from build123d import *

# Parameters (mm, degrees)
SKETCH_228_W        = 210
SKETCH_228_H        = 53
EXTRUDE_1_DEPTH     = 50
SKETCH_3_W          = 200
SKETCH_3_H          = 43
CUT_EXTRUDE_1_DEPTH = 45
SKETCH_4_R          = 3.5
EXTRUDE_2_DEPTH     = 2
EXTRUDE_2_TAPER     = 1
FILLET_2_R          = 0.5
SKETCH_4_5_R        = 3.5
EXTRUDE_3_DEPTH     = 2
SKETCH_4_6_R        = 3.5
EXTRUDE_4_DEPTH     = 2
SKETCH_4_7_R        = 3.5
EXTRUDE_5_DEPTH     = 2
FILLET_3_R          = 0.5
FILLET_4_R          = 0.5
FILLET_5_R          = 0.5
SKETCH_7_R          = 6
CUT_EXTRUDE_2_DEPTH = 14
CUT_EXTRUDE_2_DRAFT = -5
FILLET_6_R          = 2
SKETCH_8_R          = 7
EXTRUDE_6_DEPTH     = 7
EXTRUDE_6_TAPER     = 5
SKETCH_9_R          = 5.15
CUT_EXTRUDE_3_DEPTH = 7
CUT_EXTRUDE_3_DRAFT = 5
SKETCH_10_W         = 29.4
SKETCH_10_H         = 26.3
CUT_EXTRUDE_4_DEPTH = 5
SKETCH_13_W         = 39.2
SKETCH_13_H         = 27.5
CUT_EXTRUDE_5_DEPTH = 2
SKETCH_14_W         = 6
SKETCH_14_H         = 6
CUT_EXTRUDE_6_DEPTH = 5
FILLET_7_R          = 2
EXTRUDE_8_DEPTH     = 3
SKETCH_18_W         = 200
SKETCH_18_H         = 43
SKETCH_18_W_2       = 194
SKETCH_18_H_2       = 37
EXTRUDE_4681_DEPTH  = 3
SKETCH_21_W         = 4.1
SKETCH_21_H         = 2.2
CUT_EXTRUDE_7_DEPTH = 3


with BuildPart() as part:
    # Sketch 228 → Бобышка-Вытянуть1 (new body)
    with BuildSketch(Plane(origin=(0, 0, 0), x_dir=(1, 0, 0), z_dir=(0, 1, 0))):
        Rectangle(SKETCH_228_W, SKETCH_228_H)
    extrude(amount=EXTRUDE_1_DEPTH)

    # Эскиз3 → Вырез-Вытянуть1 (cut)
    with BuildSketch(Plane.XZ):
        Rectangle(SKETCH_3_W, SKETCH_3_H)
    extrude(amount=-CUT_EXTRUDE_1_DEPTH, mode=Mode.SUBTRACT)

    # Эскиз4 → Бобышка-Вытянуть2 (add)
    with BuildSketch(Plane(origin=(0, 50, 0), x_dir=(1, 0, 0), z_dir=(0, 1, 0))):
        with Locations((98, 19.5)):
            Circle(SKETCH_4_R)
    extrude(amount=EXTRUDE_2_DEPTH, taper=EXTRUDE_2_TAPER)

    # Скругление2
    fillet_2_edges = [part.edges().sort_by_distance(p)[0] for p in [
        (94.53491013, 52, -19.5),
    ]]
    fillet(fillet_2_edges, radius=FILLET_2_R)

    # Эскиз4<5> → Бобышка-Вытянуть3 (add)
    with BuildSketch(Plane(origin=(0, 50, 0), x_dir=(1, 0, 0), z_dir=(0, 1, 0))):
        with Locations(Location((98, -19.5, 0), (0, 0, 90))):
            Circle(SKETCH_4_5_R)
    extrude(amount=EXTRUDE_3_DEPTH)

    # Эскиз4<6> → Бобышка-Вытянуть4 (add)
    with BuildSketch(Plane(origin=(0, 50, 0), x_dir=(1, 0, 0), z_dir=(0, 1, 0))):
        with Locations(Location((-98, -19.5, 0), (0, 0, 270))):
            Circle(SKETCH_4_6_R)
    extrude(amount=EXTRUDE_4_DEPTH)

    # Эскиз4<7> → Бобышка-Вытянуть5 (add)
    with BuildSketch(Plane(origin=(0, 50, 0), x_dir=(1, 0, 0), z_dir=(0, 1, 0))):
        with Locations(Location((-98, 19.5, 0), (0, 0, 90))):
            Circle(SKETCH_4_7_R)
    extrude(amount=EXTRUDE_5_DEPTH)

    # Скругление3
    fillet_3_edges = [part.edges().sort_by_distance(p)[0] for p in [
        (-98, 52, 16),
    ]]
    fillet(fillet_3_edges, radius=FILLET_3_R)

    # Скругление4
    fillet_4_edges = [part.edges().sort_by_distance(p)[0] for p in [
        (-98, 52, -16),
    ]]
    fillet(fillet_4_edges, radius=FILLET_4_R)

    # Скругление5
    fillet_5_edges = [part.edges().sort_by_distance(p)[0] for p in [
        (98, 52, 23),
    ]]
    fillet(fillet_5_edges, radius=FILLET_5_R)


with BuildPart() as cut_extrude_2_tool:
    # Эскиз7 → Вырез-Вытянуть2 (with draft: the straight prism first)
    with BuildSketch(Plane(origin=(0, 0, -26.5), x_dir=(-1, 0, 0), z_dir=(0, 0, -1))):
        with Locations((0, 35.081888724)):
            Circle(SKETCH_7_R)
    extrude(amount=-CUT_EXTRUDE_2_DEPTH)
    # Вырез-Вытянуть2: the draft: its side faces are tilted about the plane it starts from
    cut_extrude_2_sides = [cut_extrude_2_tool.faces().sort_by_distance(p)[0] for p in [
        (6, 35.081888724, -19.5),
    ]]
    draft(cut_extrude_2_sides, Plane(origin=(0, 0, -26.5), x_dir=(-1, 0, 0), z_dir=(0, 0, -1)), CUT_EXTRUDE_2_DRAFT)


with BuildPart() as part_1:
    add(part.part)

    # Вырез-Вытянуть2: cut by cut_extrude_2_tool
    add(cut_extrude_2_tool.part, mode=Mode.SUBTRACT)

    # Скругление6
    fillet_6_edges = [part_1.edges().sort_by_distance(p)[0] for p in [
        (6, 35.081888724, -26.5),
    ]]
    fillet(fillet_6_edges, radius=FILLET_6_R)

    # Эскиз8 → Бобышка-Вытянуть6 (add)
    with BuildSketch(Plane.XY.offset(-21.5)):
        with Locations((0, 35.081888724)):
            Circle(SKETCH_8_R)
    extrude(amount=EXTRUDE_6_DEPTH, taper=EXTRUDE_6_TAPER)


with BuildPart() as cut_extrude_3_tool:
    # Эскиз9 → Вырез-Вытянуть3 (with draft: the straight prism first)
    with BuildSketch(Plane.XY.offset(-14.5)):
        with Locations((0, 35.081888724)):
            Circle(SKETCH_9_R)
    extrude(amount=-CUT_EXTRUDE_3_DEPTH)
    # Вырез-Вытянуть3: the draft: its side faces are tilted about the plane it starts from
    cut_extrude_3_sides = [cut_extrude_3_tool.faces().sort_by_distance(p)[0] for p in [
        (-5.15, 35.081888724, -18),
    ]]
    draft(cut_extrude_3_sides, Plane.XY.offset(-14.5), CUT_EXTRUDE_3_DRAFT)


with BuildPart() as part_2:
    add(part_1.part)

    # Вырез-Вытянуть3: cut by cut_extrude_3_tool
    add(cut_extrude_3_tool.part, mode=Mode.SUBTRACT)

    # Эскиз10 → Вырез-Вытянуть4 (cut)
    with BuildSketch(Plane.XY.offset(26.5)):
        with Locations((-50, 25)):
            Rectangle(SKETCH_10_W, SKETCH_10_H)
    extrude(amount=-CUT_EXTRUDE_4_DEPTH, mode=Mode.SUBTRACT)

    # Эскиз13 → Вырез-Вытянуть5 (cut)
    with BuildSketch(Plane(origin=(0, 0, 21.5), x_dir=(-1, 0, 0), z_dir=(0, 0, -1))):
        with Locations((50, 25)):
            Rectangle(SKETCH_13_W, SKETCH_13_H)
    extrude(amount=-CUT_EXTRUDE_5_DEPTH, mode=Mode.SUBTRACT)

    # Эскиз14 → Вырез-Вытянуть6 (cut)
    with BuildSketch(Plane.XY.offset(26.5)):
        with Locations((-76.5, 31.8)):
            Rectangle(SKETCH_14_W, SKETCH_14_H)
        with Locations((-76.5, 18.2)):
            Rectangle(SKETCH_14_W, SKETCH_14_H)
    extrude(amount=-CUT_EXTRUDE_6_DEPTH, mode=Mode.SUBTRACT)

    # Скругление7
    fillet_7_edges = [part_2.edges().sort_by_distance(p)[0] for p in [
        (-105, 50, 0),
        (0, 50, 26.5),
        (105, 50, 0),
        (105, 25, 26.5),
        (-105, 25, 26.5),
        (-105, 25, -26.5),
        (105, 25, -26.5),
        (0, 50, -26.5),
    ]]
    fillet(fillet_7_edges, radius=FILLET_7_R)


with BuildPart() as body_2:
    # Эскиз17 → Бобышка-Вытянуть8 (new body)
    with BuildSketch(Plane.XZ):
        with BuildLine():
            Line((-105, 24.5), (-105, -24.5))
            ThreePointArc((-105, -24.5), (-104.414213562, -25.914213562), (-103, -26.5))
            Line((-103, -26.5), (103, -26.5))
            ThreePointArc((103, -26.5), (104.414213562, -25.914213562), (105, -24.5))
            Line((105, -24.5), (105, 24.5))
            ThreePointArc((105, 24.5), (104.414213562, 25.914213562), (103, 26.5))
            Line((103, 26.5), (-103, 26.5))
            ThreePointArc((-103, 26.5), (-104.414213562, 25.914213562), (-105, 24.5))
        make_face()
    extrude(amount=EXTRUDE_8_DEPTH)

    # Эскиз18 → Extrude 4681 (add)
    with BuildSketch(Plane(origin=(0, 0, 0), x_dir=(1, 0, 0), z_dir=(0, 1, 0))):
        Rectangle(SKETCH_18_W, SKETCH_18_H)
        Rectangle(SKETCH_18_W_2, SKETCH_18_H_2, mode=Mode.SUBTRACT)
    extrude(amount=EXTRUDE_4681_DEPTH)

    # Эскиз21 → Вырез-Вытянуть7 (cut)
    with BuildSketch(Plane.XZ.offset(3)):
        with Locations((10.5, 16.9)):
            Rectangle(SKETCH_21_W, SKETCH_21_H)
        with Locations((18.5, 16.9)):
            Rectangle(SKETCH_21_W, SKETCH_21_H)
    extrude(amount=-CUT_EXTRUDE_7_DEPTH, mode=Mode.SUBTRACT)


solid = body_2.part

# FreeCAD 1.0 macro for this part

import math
import FreeCAD as App
import Part
import Sketcher

V = App.Vector
Q = App.Units.Quantity


def edges_at(feature, points):
    """Names of the edges that pass closest to the given points."""
    edges = feature.Shape.Edges
    near = lambda p: min(range(len(edges)), key=lambda i: edges[i].distToShape(Part.Vertex(*p))[0])
    return sorted({f"Edge{near(p) + 1}" for p in points})


def faces_at(feature, points):
    """Names of the faces that lie closest to the given points."""
    faces = feature.Shape.Faces
    near = lambda p: min(range(len(faces)), key=lambda i: faces[i].distToShape(Part.Vertex(*p))[0])
    return sorted({f"Face{near(p) + 1}" for p in points})

doc = App.newDocument("Part")
body = doc.addObject("PartDesign::Body", "Body")

# Sketch on XZ plane
sketch1 = body.newObject("Sketcher::SketchObject", "Sketch")
sketch1.AttachmentSupport = (doc.getObject("XZ_Plane"), [""])
sketch1.MapMode = "FlatFace"
sketch1.addGeometry([
    Part.LineSegment(V(-105, -26, 0), V(-105, 26, 0)),
    Part.LineSegment(V(-105, 26, 0), V(105, 26, 0)),
    Part.LineSegment(V(105, 26, 0), V(105, -26, 0)),
    Part.LineSegment(V(105, -26, 0), V(-105, -26, 0)),
], False)
sketch1.addConstraint([
    Sketcher.Constraint("Coincident", 0, 2, 1, 1),
    Sketcher.Constraint("Coincident", 1, 2, 2, 1),
    Sketcher.Constraint("Coincident", 2, 2, 3, 1),
    Sketcher.Constraint("Coincident", 3, 2, 0, 1),
    Sketcher.Constraint("Vertical", 0),
    Sketcher.Constraint("Horizontal", 1),
    Sketcher.Constraint("Vertical", 2),
    Sketcher.Constraint("Horizontal", 3),
    Sketcher.Constraint("Symmetric", 0, 2, 2, 2, -1, 1),
    Sketcher.Constraint("DistanceX", 1, 1, 1, 2, Q("210 mm")),
    Sketcher.Constraint("DistanceY", 0, 1, 0, 2, Q("53 mm")),
])
pad1 = body.newObject("PartDesign::Pad", "Pad")
pad1.Profile = sketch1
pad1.Length = 50
pad1.Reversed = True

# Sketch on XZ plane
sketch2 = body.newObject("Sketcher::SketchObject", "Sketch001")
sketch2.AttachmentSupport = (doc.getObject("XZ_Plane"), [""])
sketch2.MapMode = "FlatFace"
sketch2.addGeometry([
    Part.LineSegment(V(-100, 22, 0), V(-100, -22, 0)),
    Part.LineSegment(V(-100, -22, 0), V(100, -22, 0)),
    Part.LineSegment(V(100, -22, 0), V(100, 22, 0)),
    Part.LineSegment(V(100, 22, 0), V(-100, 22, 0)),
], False)
sketch2.addConstraint([
    Sketcher.Constraint("Coincident", 0, 2, 1, 1),
    Sketcher.Constraint("Coincident", 1, 2, 2, 1),
    Sketcher.Constraint("Coincident", 2, 2, 3, 1),
    Sketcher.Constraint("Coincident", 3, 2, 0, 1),
    Sketcher.Constraint("Vertical", 0),
    Sketcher.Constraint("Horizontal", 1),
    Sketcher.Constraint("Vertical", 2),
    Sketcher.Constraint("Horizontal", 3),
    Sketcher.Constraint("Symmetric", 0, 2, 2, 2, -1, 1),
    Sketcher.Constraint("DistanceX", 1, 1, 1, 2, Q("200 mm")),
    Sketcher.Constraint("DistanceY", 0, 2, 0, 1, Q("43 mm")),
])
pocket1 = body.newObject("PartDesign::Pocket", "Pocket")
pocket1.Profile = sketch2
pocket1.Length = 45

# Sketch on XZ plane
sketch3 = body.newObject("Sketcher::SketchObject", "Sketch002")
sketch3.AttachmentSupport = (doc.getObject("XZ_Plane"), [""])
sketch3.MapMode = "FlatFace"
sketch3.AttachmentOffset = App.Placement(V(0, 0, -50), App.Rotation())
sketch3.addGeometry(Part.Circle(V(98, -19.5, 0), V(0, 0, 1), 3.5), False)
sketch3.addConstraint([
    Sketcher.Constraint("Diameter", 0, Q("7 mm")),
    Sketcher.Constraint("DistanceX", -1, 1, 0, 3, Q("98 mm")),
    Sketcher.Constraint("DistanceY", 0, 3, -1, 1, Q("19.5 mm")),
])
pad2 = body.newObject("PartDesign::Pad", "Pad001")
pad2.Profile = sketch3
pad2.Length = 2
pad2.Reversed = True
pad2.TaperAngle = -1
doc.recompute()

fillet = body.newObject("PartDesign::Fillet", "Fillet")
fillet.Base = (pad2, edges_at(pad2, [(94.535, 52, -19.5)]))
fillet.Radius = 0.5

# Sketch on XZ plane
sketch4 = body.newObject("Sketcher::SketchObject", "Sketch003")
sketch4.AttachmentSupport = (doc.getObject("XZ_Plane"), [""])
sketch4.MapMode = "FlatFace"
sketch4.AttachmentOffset = App.Placement(V(0, 0, -50), App.Rotation())
sketch4.addGeometry(Part.Circle(V(98, 19.5, 0), V(0, 0, 1), 3.5), False)
sketch4.addConstraint([
    Sketcher.Constraint("Diameter", 0, Q("7 mm")),
    Sketcher.Constraint("DistanceX", -1, 1, 0, 3, Q("98 mm")),
    Sketcher.Constraint("DistanceY", -1, 1, 0, 3, Q("19.5 mm")),
])
pad3 = body.newObject("PartDesign::Pad", "Pad002")
pad3.Profile = sketch4
pad3.Length = 2
pad3.Reversed = True

# Sketch on XZ plane
sketch5 = body.newObject("Sketcher::SketchObject", "Sketch004")
sketch5.AttachmentSupport = (doc.getObject("XZ_Plane"), [""])
sketch5.MapMode = "FlatFace"
sketch5.AttachmentOffset = App.Placement(V(0, 0, -50), App.Rotation())
sketch5.addGeometry(Part.Circle(V(-98, 19.5, 0), V(0, 0, 1), 3.5), False)
sketch5.addConstraint([
    Sketcher.Constraint("Diameter", 0, Q("7 mm")),
    Sketcher.Constraint("DistanceX", 0, 3, -1, 1, Q("98 mm")),
    Sketcher.Constraint("DistanceY", -1, 1, 0, 3, Q("19.5 mm")),
])
pad4 = body.newObject("PartDesign::Pad", "Pad003")
pad4.Profile = sketch5
pad4.Length = 2
pad4.Reversed = True

# Sketch on XZ plane
sketch6 = body.newObject("Sketcher::SketchObject", "Sketch005")
sketch6.AttachmentSupport = (doc.getObject("XZ_Plane"), [""])
sketch6.MapMode = "FlatFace"
sketch6.AttachmentOffset = App.Placement(V(0, 0, -50), App.Rotation())
sketch6.addGeometry(Part.Circle(V(-98, -19.5, 0), V(0, 0, 1), 3.5), False)
sketch6.addConstraint([
    Sketcher.Constraint("Diameter", 0, Q("7 mm")),
    Sketcher.Constraint("DistanceX", 0, 3, -1, 1, Q("98 mm")),
    Sketcher.Constraint("DistanceY", 0, 3, -1, 1, Q("19.5 mm")),
])
pad5 = body.newObject("PartDesign::Pad", "Pad004")
pad5.Profile = sketch6
pad5.Length = 2
pad5.Reversed = True
doc.recompute()

fillet2 = body.newObject("PartDesign::Fillet", "Fillet001")
fillet2.Base = (pad5, edges_at(pad5, [(-98, 52, 16)]))
fillet2.Radius = 0.5
doc.recompute()

fillet3 = body.newObject("PartDesign::Fillet", "Fillet002")
fillet3.Base = (fillet2, edges_at(fillet2, [(-98, 52, -16)]))
fillet3.Radius = 0.5
doc.recompute()

fillet4 = body.newObject("PartDesign::Fillet", "Fillet003")
fillet4.Base = (fillet3, edges_at(fillet3, [(98, 52, 23)]))
fillet4.Radius = 0.5
body2 = doc.addObject("PartDesign::Body", "Body001")

# Sketch on XY plane
sketch7 = body2.newObject("Sketcher::SketchObject", "Sketch006")
sketch7.AttachmentSupport = (doc.getObject("XY_Plane001"), [""])
sketch7.MapMode = "FlatFace"
sketch7.AttachmentOffset = App.Placement(V(0, 0, -26.5), App.Rotation())
sketch7.addGeometry(Part.Circle(V(0, 35, 0), V(0, 0, 1), 6), False)
sketch7.addConstraint([
    Sketcher.Constraint("PointOnObject", 0, 3, -2),
    Sketcher.Constraint("Diameter", 0, Q("12 mm")),
    Sketcher.Constraint("DistanceY", -1, 1, 0, 3, Q("35.081889 mm")),
])
pad6 = body2.newObject("PartDesign::Pad", "Pad005")
pad6.Profile = sketch7
pad6.Length = 14
doc.recompute()

datumplane = body2.newObject("PartDesign::Plane", "DatumPlane")
datumplane.AttachmentSupport = (doc.getObject("XY_Plane001"), [""])
datumplane.MapMode = "FlatFace"
datumplane.AttachmentOffset = App.Placement(V(0, 0, -26.5), App.Rotation())
draft = body2.newObject("PartDesign::Draft", "Draft")
draft.Base = (pad6, faces_at(pad6, [(6, 35.082, -19.5)]))
draft.NeutralPlane = (datumplane, [""])
draft.Angle = 5
draft.Reversed = False
doc.recompute()

boolean = body.newObject("PartDesign::Boolean", "Boolean")
boolean.Type = "Cut"
boolean.addObjects([body2])
doc.recompute()

fillet5 = body.newObject("PartDesign::Fillet", "Fillet004")
fillet5.Base = (boolean, edges_at(boolean, [(6, 35.082, -26.5)]))
fillet5.Radius = 2

# Sketch on XY plane
sketch8 = body.newObject("Sketcher::SketchObject", "Sketch007")
sketch8.AttachmentSupport = (doc.getObject("XY_Plane"), [""])
sketch8.MapMode = "FlatFace"
sketch8.AttachmentOffset = App.Placement(V(0, 0, -21.5), App.Rotation())
sketch8.addGeometry(Part.Circle(V(0, 35, 0), V(0, 0, 1), 7), False)
sketch8.addConstraint([
    Sketcher.Constraint("PointOnObject", 0, 3, -2),
    Sketcher.Constraint("Diameter", 0, Q("14 mm")),
    Sketcher.Constraint("DistanceY", -1, 1, 0, 3, Q("35.081889 mm")),
])
pad7 = body.newObject("PartDesign::Pad", "Pad006")
pad7.Profile = sketch8
pad7.Length = 7
pad7.TaperAngle = -5
body3 = doc.addObject("PartDesign::Body", "Body002")

# Sketch on XY plane
sketch9 = body3.newObject("Sketcher::SketchObject", "Sketch008")
sketch9.AttachmentSupport = (doc.getObject("XY_Plane002"), [""])
sketch9.MapMode = "FlatFace"
sketch9.AttachmentOffset = App.Placement(V(0, 0, -14.5), App.Rotation())
sketch9.addGeometry(Part.Circle(V(0, 35, 0), V(0, 0, 1), 5), False)
sketch9.addConstraint([
    Sketcher.Constraint("PointOnObject", 0, 3, -2),
    Sketcher.Constraint("Diameter", 0, Q("10.3 mm")),
    Sketcher.Constraint("DistanceY", -1, 1, 0, 3, Q("35.081889 mm")),
])
pad8 = body3.newObject("PartDesign::Pad", "Pad007")
pad8.Profile = sketch9
pad8.Length = 7
pad8.Reversed = True
doc.recompute()

datumplane2 = body3.newObject("PartDesign::Plane", "DatumPlane001")
datumplane2.AttachmentSupport = (doc.getObject("XY_Plane002"), [""])
datumplane2.MapMode = "FlatFace"
datumplane2.AttachmentOffset = App.Placement(V(0, 0, -14.5), App.Rotation())
draft2 = body3.newObject("PartDesign::Draft", "Draft001")
draft2.Base = (pad8, faces_at(pad8, [(-5.15, 35.082, -18)]))
draft2.NeutralPlane = (datumplane2, [""])
draft2.Angle = 5
draft2.Reversed = False
doc.recompute()

boolean2 = body.newObject("PartDesign::Boolean", "Boolean001")
boolean2.Type = "Cut"
boolean2.addObjects([body3])

# Sketch on XY plane
sketch10 = body.newObject("Sketcher::SketchObject", "Sketch009")
sketch10.AttachmentSupport = (doc.getObject("XY_Plane"), [""])
sketch10.MapMode = "FlatFace"
sketch10.AttachmentOffset = App.Placement(V(0, 0, 26.5), App.Rotation())
sketch10.addGeometry([
    Part.LineSegment(V(-65, 38, 0), V(-65, 12, 0)),
    Part.LineSegment(V(-65, 12, 0), V(-35, 12, 0)),
    Part.LineSegment(V(-35, 12, 0), V(-35, 38, 0)),
    Part.LineSegment(V(-35, 38, 0), V(-65, 38, 0)),
], False)
sketch10.addConstraint([
    Sketcher.Constraint("Coincident", 0, 2, 1, 1),
    Sketcher.Constraint("Coincident", 1, 2, 2, 1),
    Sketcher.Constraint("Coincident", 2, 2, 3, 1),
    Sketcher.Constraint("Coincident", 3, 2, 0, 1),
    Sketcher.Constraint("Vertical", 0),
    Sketcher.Constraint("Horizontal", 1),
    Sketcher.Constraint("Vertical", 2),
    Sketcher.Constraint("Horizontal", 3),
    Sketcher.Constraint("DistanceX", 1, 1, 1, 2, Q("29.4 mm")),
    Sketcher.Constraint("DistanceY", 0, 2, 0, 1, Q("26.3 mm")),
    Sketcher.Constraint("DistanceX", 0, 2, -1, 1, Q("64.7 mm")),
    Sketcher.Constraint("DistanceY", -1, 1, 0, 2, Q("11.85 mm")),
])
pocket2 = body.newObject("PartDesign::Pocket", "Pocket001")
pocket2.Profile = sketch10
pocket2.Length = 5

# Sketch on XY plane
sketch11 = body.newObject("Sketcher::SketchObject", "Sketch010")
sketch11.AttachmentSupport = (doc.getObject("XY_Plane"), [""])
sketch11.MapMode = "FlatFace"
sketch11.AttachmentOffset = App.Placement(V(0, 0, 21.5), App.Rotation())
sketch11.addGeometry([
    Part.LineSegment(V(-30, 39, 0), V(-30, 11, 0)),
    Part.LineSegment(V(-30, 11, 0), V(-70, 11, 0)),
    Part.LineSegment(V(-70, 11, 0), V(-70, 39, 0)),
    Part.LineSegment(V(-70, 39, 0), V(-30, 39, 0)),
], False)
sketch11.addConstraint([
    Sketcher.Constraint("Coincident", 0, 2, 1, 1),
    Sketcher.Constraint("Coincident", 1, 2, 2, 1),
    Sketcher.Constraint("Coincident", 2, 2, 3, 1),
    Sketcher.Constraint("Coincident", 3, 2, 0, 1),
    Sketcher.Constraint("Vertical", 0),
    Sketcher.Constraint("Horizontal", 1),
    Sketcher.Constraint("Vertical", 2),
    Sketcher.Constraint("Horizontal", 3),
    Sketcher.Constraint("DistanceX", 1, 2, 1, 1, Q("39.2 mm")),
    Sketcher.Constraint("DistanceY", 0, 2, 0, 1, Q("27.5 mm")),
    Sketcher.Constraint("DistanceX", 0, 2, -1, 1, Q("30.4 mm")),
    Sketcher.Constraint("DistanceY", -1, 1, 0, 2, Q("11.25 mm")),
])
pocket3 = body.newObject("PartDesign::Pocket", "Pocket002")
pocket3.Profile = sketch11
pocket3.Length = 2
pocket3.Reversed = True

# Sketch on XY plane
sketch12 = body.newObject("Sketcher::SketchObject", "Sketch011")
sketch12.AttachmentSupport = (doc.getObject("XY_Plane"), [""])
sketch12.MapMode = "FlatFace"
sketch12.AttachmentOffset = App.Placement(V(0, 0, 26.5), App.Rotation())
sketch12.addGeometry([
    Part.LineSegment(V(-80, 35, 0), V(-80, 29, 0)),  # 0
    Part.LineSegment(V(-80, 29, 0), V(-74, 29, 0)),  # 1
    Part.LineSegment(V(-74, 29, 0), V(-74, 35, 0)),  # 2
    Part.LineSegment(V(-74, 35, 0), V(-80, 35, 0)),  # 3
    Part.LineSegment(V(-80, 21, 0), V(-80, 15, 0)),  # 4
    Part.LineSegment(V(-80, 15, 0), V(-74, 15, 0)),  # 5
    Part.LineSegment(V(-74, 15, 0), V(-74, 21, 0)),  # 6
    Part.LineSegment(V(-74, 21, 0), V(-80, 21, 0)),  # 7
], False)
sketch12.addConstraint([
    Sketcher.Constraint("Coincident", 0, 2, 1, 1),
    Sketcher.Constraint("Coincident", 1, 2, 2, 1),
    Sketcher.Constraint("Coincident", 2, 2, 3, 1),
    Sketcher.Constraint("Coincident", 3, 2, 0, 1),
    Sketcher.Constraint("Coincident", 4, 2, 5, 1),
    Sketcher.Constraint("Coincident", 5, 2, 6, 1),
    Sketcher.Constraint("Coincident", 6, 2, 7, 1),
    Sketcher.Constraint("Coincident", 7, 2, 4, 1),
    Sketcher.Constraint("Vertical", 0),
    Sketcher.Constraint("Horizontal", 1),
    Sketcher.Constraint("Vertical", 2),
    Sketcher.Constraint("Horizontal", 3),
    Sketcher.Constraint("Vertical", 4),
    Sketcher.Constraint("Horizontal", 5),
    Sketcher.Constraint("Vertical", 6),
    Sketcher.Constraint("Horizontal", 7),
    Sketcher.Constraint("Vertical", 3, 2, 4, 2),
    Sketcher.Constraint("Vertical", 2, 2, 5, 2),
    Sketcher.Constraint("Equal", 7, 0),
    Sketcher.Constraint("Equal", 2, 4),
    Sketcher.Constraint("DistanceX", 1, 1, 1, 2, Q("6 mm")),
    Sketcher.Constraint("DistanceX", 0, 2, -1, 1, Q("79.5 mm")),
    Sketcher.Constraint("DistanceY", -1, 1, 0, 2, Q("28.8 mm")),
    Sketcher.Constraint("DistanceY", -1, 1, 4, 2, Q("15.2 mm")),
])
pocket4 = body.newObject("PartDesign::Pocket", "Pocket003")
pocket4.Profile = sketch12
pocket4.Length = 5
doc.recompute()

fillet6 = body.newObject("PartDesign::Fillet", "Fillet005")
fillet6.Base = (pocket4, edges_at(pocket4, [
    (-105, 50, 0),
    (0, 50, 26.5),
    (105, 50, 0),
    (105, 25, 26.5),
    (-105, 25, 26.5),
    (-105, 25, -26.5),
    (105, 25, -26.5),
    (0, 50, -26.5),
]))
fillet6.Radius = 2
body4 = doc.addObject("PartDesign::Body", "Body003")

# Sketch on XZ plane
sketch13 = body4.newObject("Sketcher::SketchObject", "Sketch012")
sketch13.AttachmentSupport = (doc.getObject("XZ_Plane003"), [""])
sketch13.MapMode = "FlatFace"
sketch13.addGeometry([
    Part.LineSegment(V(-105, 24.5, 0), V(-105, -24.5, 0)),  # 0
    Part.ArcOfCircle(Part.Circle(V(-103, -24.5, 0), V(0, 0, 1), 2), math.radians(-180), math.radians(-90)),  # 1
    Part.LineSegment(V(-103, -26.5, 0), V(103, -26.5, 0)),  # 2
    Part.ArcOfCircle(Part.Circle(V(103, -24.5, 0), V(0, 0, 1), 2), math.radians(-90), math.radians(0)),  # 3
    Part.LineSegment(V(105, -24.5, 0), V(105, 24.5, 0)),  # 4
    Part.ArcOfCircle(Part.Circle(V(103, 24.5, 0), V(0, 0, 1), 2), math.radians(0), math.radians(90)),  # 5
    Part.LineSegment(V(103, 26.5, 0), V(-103, 26.5, 0)),  # 6
    Part.ArcOfCircle(Part.Circle(V(-103, 24.5, 0), V(0, 0, 1), 2), math.radians(90), math.radians(180)),  # 7
], False)
sketch13.addConstraint([
    Sketcher.Constraint("Tangent", 0, 2, 1, 1),
    Sketcher.Constraint("Tangent", 1, 2, 2, 1),
    Sketcher.Constraint("Tangent", 2, 2, 3, 1),
    Sketcher.Constraint("Tangent", 3, 2, 4, 1),
    Sketcher.Constraint("Tangent", 4, 2, 5, 1),
    Sketcher.Constraint("Tangent", 5, 2, 6, 1),
    Sketcher.Constraint("Tangent", 6, 2, 7, 1),
    Sketcher.Constraint("Tangent", 7, 2, 0, 1),
    Sketcher.Constraint("Vertical", 0),
    Sketcher.Constraint("Horizontal", 2),
    Sketcher.Constraint("Vertical", 4),
    Sketcher.Constraint("Horizontal", 6),
    Sketcher.Constraint("Equal", 1, 3),
    Sketcher.Constraint("Equal", 3, 5),
    Sketcher.Constraint("Equal", 5, 7),
    Sketcher.Constraint("Symmetric", 1, 3, 5, 3, -1, 1),
    Sketcher.Constraint("Radius", 1, Q("2 mm")),
    Sketcher.Constraint("DistanceX", 2, 1, 2, 2, Q("206 mm")),
    Sketcher.Constraint("DistanceY", 0, 2, 0, 1, Q("49 mm")),
])
pad9 = body4.newObject("PartDesign::Pad", "Pad008")
pad9.Profile = sketch13
pad9.Length = 3

# Sketch on XZ plane
sketch14 = body4.newObject("Sketcher::SketchObject", "Sketch013")
sketch14.AttachmentSupport = (doc.getObject("XZ_Plane003"), [""])
sketch14.MapMode = "FlatFace"
sketch14.addGeometry([
    Part.LineSegment(V(-100, -22, 0), V(-100, 22, 0)),  # 0
    Part.LineSegment(V(-100, 22, 0), V(100, 22, 0)),  # 1
    Part.LineSegment(V(100, 22, 0), V(100, -22, 0)),  # 2
    Part.LineSegment(V(100, -22, 0), V(-100, -22, 0)),  # 3
    Part.LineSegment(V(97, 18, 0), V(-97, 18, 0)),  # 4
    Part.LineSegment(V(-97, 18, 0), V(-97, -18, 0)),  # 5
    Part.LineSegment(V(-97, -18, 0), V(97, -18, 0)),  # 6
    Part.LineSegment(V(97, -18, 0), V(97, 18, 0)),  # 7
], False)
sketch14.addConstraint([
    Sketcher.Constraint("Coincident", 0, 2, 1, 1),
    Sketcher.Constraint("Coincident", 1, 2, 2, 1),
    Sketcher.Constraint("Coincident", 2, 2, 3, 1),
    Sketcher.Constraint("Coincident", 3, 2, 0, 1),
    Sketcher.Constraint("Coincident", 4, 2, 5, 1),
    Sketcher.Constraint("Coincident", 5, 2, 6, 1),
    Sketcher.Constraint("Coincident", 6, 2, 7, 1),
    Sketcher.Constraint("Coincident", 7, 2, 4, 1),
    Sketcher.Constraint("Vertical", 0),
    Sketcher.Constraint("Horizontal", 1),
    Sketcher.Constraint("Vertical", 2),
    Sketcher.Constraint("Horizontal", 3),
    Sketcher.Constraint("Horizontal", 4),
    Sketcher.Constraint("Vertical", 5),
    Sketcher.Constraint("Horizontal", 6),
    Sketcher.Constraint("Vertical", 7),
    Sketcher.Constraint("Symmetric", 0, 2, 2, 2, -1, 1),
    Sketcher.Constraint("Symmetric", 4, 2, 6, 2, -1, 1),
    Sketcher.Constraint("DistanceX", 1, 1, 1, 2, Q("200 mm")),
    Sketcher.Constraint("DistanceX", 4, 2, 4, 1, Q("194 mm")),
    Sketcher.Constraint("DistanceY", 0, 1, 0, 2, Q("43 mm")),
    Sketcher.Constraint("DistanceY", 5, 2, 5, 1, Q("37 mm")),
])
pad10 = body4.newObject("PartDesign::Pad", "Pad009")
pad10.Profile = sketch14
pad10.Length = 3
pad10.Reversed = True

# Sketch on XZ plane
sketch15 = body4.newObject("Sketcher::SketchObject", "Sketch014")
sketch15.AttachmentSupport = (doc.getObject("XZ_Plane003"), [""])
sketch15.MapMode = "FlatFace"
sketch15.AttachmentOffset = App.Placement(V(0, 0, 3), App.Rotation())
sketch15.addGeometry([
    Part.LineSegment(V(8.4, 18, 0), V(8.4, 15.8, 0)),  # 0
    Part.LineSegment(V(8.4, 15.8, 0), V(12.6, 15.8, 0)),  # 1
    Part.LineSegment(V(12.6, 15.8, 0), V(12.6, 18, 0)),  # 2
    Part.LineSegment(V(12.6, 18, 0), V(8.4, 18, 0)),  # 3
    Part.LineSegment(V(16.4, 18, 0), V(16.4, 15.8, 0)),  # 4
    Part.LineSegment(V(16.4, 15.8, 0), V(20.6, 15.8, 0)),  # 5
    Part.LineSegment(V(20.6, 15.8, 0), V(20.6, 18, 0)),  # 6
    Part.LineSegment(V(20.6, 18, 0), V(16.4, 18, 0)),  # 7
], False)
sketch15.addConstraint([
    Sketcher.Constraint("Coincident", 0, 2, 1, 1),
    Sketcher.Constraint("Coincident", 1, 2, 2, 1),
    Sketcher.Constraint("Coincident", 2, 2, 3, 1),
    Sketcher.Constraint("Coincident", 3, 2, 0, 1),
    Sketcher.Constraint("Coincident", 4, 2, 5, 1),
    Sketcher.Constraint("Coincident", 5, 2, 6, 1),
    Sketcher.Constraint("Coincident", 6, 2, 7, 1),
    Sketcher.Constraint("Coincident", 7, 2, 4, 1),
    Sketcher.Constraint("Vertical", 0),
    Sketcher.Constraint("Horizontal", 1),
    Sketcher.Constraint("Vertical", 2),
    Sketcher.Constraint("Horizontal", 3),
    Sketcher.Constraint("Vertical", 4),
    Sketcher.Constraint("Horizontal", 5),
    Sketcher.Constraint("Vertical", 6),
    Sketcher.Constraint("Horizontal", 7),
    Sketcher.Constraint("Horizontal", 1, 2, 4, 2),
    Sketcher.Constraint("Horizontal", 3, 2, 6, 2),
    Sketcher.Constraint("Equal", 3, 5),
    Sketcher.Constraint("DistanceX", 1, 1, 1, 2, Q("4.1 mm")),
    Sketcher.Constraint("DistanceY", 0, 2, 0, 1, Q("2.2 mm")),
    Sketcher.Constraint("DistanceY", -1, 1, 2, 2, Q("18 mm")),
    Sketcher.Constraint("DistanceX", 0, 2, 4, 2, Q("8 mm")),
    Sketcher.Constraint("DistanceX", -1, 1, 0, 2, Q("8.45 mm")),
])
pocket5 = body4.newObject("PartDesign::Pocket", "Pocket004")
pocket5.Profile = sketch15
pocket5.Length = 3
body.Visibility = False

doc.recompute()
